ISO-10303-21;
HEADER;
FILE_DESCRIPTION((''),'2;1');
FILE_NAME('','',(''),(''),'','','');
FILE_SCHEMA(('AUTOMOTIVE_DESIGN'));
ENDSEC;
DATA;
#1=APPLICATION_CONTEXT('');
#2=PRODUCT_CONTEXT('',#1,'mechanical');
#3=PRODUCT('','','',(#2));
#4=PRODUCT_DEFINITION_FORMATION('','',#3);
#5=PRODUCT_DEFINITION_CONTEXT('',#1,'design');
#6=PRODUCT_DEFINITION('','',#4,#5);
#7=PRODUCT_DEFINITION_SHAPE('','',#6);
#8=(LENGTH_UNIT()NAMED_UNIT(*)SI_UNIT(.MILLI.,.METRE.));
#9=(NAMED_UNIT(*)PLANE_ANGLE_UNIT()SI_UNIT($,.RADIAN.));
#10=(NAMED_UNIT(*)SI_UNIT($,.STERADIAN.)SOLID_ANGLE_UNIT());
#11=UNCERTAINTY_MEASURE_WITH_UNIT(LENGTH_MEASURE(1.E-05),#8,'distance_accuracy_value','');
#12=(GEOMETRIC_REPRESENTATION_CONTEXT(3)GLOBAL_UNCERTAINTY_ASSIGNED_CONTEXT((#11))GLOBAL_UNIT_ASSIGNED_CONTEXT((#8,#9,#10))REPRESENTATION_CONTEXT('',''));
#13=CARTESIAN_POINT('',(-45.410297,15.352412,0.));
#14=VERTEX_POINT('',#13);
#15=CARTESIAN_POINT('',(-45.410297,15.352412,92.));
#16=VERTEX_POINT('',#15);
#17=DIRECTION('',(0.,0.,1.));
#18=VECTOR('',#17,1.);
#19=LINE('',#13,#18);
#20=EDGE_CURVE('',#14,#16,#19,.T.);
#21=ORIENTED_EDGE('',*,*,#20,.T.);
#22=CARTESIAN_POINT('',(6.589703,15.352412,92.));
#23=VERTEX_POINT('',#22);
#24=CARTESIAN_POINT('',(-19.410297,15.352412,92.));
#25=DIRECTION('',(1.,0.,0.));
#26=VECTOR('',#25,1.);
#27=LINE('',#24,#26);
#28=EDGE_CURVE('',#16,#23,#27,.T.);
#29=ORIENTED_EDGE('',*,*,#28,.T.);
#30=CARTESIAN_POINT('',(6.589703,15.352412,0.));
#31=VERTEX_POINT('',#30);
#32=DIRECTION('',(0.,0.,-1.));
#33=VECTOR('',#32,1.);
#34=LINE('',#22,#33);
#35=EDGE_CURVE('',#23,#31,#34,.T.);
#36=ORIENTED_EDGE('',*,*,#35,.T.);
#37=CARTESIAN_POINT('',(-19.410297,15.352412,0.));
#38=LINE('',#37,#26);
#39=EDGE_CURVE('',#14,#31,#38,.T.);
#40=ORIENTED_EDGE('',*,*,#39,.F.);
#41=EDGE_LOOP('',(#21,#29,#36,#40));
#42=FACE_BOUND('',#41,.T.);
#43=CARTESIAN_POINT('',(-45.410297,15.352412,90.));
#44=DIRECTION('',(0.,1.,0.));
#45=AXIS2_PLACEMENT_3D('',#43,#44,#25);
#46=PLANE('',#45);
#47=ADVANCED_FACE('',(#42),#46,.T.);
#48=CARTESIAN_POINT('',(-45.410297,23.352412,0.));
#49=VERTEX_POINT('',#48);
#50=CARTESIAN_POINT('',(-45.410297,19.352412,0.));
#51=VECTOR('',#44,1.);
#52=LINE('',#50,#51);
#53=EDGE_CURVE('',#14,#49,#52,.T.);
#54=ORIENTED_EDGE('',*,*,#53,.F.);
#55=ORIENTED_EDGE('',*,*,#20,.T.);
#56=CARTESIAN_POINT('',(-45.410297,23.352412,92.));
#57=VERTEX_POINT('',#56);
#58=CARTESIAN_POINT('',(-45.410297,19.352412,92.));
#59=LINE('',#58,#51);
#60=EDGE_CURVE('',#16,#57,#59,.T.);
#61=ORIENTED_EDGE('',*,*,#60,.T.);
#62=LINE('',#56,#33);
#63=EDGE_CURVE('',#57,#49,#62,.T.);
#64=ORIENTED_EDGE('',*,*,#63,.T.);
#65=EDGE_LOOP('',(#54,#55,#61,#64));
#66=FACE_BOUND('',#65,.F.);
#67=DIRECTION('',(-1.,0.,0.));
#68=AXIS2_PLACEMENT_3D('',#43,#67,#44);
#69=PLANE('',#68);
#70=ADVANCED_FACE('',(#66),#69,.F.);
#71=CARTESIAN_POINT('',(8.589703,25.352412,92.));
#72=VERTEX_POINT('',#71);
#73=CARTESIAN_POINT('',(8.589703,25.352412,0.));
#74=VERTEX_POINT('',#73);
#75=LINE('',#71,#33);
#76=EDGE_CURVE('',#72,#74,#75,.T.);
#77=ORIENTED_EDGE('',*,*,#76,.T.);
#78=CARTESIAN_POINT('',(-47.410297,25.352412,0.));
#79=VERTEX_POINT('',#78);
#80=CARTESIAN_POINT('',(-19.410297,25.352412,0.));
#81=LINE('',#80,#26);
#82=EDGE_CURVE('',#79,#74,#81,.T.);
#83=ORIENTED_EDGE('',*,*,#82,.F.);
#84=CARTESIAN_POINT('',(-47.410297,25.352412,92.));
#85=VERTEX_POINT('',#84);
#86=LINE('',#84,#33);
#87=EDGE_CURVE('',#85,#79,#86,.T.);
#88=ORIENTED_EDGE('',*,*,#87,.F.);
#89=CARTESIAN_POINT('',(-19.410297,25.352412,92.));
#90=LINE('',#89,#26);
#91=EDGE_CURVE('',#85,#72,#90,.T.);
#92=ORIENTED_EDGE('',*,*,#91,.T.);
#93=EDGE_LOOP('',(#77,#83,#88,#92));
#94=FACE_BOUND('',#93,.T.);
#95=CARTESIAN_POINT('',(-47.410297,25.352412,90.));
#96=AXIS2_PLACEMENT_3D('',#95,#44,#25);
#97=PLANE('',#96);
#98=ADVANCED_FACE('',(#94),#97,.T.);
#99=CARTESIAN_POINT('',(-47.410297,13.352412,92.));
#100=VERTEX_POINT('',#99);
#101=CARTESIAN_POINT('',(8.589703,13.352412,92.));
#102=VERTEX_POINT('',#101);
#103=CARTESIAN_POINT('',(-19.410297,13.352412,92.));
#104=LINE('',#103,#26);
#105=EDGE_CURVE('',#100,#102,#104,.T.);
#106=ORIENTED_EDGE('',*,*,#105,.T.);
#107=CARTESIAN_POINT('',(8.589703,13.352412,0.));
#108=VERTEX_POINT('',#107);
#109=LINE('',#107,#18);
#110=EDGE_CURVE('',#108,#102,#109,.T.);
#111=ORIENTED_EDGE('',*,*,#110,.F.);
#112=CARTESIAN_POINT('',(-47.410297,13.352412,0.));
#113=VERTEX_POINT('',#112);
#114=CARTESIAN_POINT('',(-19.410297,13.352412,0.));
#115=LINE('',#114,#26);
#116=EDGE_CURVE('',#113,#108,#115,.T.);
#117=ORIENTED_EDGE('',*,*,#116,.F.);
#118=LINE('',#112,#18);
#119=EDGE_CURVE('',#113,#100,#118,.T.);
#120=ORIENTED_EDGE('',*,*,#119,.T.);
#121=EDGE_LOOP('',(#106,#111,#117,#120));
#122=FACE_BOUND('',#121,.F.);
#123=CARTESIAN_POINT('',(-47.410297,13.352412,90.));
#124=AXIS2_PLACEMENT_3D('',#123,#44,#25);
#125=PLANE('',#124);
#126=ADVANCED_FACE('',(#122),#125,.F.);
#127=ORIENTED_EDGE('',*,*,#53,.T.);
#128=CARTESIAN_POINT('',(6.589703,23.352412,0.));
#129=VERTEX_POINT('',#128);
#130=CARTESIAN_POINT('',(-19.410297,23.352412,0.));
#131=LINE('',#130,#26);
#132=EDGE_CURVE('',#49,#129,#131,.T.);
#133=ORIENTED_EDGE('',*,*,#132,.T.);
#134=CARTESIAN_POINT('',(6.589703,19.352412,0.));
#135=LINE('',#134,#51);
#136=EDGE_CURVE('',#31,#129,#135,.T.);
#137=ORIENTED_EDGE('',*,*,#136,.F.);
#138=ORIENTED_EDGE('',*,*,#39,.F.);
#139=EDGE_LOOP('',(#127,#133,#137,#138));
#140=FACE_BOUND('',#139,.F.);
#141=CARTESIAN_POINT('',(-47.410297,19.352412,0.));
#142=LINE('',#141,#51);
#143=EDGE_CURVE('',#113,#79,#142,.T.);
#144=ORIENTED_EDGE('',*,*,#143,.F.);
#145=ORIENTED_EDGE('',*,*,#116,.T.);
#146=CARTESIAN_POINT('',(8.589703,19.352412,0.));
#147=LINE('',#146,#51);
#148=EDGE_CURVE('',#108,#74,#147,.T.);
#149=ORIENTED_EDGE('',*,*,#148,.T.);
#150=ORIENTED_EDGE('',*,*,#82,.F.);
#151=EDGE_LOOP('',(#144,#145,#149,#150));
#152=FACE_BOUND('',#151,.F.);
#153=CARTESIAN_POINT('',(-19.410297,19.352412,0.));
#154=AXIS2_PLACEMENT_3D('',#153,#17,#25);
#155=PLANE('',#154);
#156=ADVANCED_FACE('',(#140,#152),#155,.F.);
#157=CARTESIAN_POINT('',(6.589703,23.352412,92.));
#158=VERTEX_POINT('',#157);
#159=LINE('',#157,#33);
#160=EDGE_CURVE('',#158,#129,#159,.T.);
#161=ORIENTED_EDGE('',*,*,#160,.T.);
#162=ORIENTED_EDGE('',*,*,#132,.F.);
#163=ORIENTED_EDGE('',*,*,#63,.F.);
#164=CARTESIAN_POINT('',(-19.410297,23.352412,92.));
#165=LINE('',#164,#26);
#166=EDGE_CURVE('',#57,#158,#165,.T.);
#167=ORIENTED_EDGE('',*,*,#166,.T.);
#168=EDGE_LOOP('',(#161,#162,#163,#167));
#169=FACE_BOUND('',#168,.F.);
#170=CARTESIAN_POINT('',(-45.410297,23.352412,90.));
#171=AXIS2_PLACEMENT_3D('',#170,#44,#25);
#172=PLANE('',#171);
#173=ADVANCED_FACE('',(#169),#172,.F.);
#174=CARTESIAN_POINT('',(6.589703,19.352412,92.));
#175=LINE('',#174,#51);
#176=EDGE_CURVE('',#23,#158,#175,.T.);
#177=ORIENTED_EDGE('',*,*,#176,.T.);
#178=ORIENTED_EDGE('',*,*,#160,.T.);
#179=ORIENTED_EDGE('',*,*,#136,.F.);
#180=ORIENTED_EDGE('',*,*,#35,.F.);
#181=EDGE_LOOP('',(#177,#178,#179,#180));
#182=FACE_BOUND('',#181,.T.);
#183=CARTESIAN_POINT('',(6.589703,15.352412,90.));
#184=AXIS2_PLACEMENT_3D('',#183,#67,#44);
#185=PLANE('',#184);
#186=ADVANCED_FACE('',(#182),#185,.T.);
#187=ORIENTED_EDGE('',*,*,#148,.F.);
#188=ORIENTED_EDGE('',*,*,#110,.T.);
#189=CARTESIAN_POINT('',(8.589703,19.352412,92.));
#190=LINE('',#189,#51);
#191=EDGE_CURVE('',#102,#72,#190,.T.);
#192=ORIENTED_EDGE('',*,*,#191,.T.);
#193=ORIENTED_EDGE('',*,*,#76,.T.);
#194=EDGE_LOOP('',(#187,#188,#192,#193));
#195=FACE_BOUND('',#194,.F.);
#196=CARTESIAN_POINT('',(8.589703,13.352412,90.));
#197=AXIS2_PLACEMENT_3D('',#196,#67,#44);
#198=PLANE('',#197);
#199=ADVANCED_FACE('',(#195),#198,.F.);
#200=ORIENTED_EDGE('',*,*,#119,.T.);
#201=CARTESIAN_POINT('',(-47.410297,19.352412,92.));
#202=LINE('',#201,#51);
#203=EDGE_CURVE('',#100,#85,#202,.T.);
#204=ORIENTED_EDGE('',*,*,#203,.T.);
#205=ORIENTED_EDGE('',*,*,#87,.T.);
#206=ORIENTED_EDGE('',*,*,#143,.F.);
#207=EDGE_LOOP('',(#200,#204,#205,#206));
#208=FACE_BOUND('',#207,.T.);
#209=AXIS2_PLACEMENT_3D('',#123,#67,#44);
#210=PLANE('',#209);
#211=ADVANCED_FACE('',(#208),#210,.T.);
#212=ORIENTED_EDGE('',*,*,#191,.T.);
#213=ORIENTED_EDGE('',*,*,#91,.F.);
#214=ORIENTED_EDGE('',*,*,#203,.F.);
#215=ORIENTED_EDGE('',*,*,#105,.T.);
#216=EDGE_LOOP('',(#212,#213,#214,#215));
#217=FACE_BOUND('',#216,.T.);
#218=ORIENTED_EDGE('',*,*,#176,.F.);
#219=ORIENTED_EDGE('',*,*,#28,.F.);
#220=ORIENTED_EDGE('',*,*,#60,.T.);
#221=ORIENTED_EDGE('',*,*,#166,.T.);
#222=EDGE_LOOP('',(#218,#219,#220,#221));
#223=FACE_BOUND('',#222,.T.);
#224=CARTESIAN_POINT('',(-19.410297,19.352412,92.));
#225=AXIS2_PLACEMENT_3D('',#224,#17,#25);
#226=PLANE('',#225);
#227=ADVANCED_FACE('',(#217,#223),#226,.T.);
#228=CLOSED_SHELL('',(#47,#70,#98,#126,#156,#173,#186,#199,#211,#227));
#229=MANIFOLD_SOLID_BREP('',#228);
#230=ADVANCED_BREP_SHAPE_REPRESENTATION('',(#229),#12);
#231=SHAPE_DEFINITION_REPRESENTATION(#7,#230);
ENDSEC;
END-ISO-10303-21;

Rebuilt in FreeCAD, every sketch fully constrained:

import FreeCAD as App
import Part
import Sketcher
from FreeCAD import Vector

doc = App.newDocument("Part")
body = doc.addObject("PartDesign::Body", "Body")

# Sketch on XY plane
sketch1 = body.newObject("Sketcher::SketchObject", "Sketch")
sketch1.AttachmentSupport = (doc.getObject("XY_Plane"), [""])
sketch1.MapMode = "FlatFace"
sketch1.addGeometry(Part.LineSegment(Vector(-47, 25, 0), Vector(-47, 13, 0)), False)
sketch1.addGeometry(Part.LineSegment(Vector(-47, 13, 0), Vector(9, 13, 0)), False)
sketch1.addGeometry(Part.LineSegment(Vector(9, 13, 0), Vector(9, 25, 0)), False)
sketch1.addGeometry(Part.LineSegment(Vector(9, 25, 0), Vector(-47, 25, 0)), False)
sketch1.addGeometry(Part.LineSegment(Vector(7, 15, 0), Vector(-45, 15, 0)), False)
sketch1.addGeometry(Part.LineSegment(Vector(-45, 15, 0), Vector(-45, 23, 0)), False)
sketch1.addGeometry(Part.LineSegment(Vector(-45, 23, 0), Vector(7, 23, 0)), False)
sketch1.addGeometry(Part.LineSegment(Vector(7, 23, 0), Vector(7, 15, 0)), False)
sketch1.addConstraint(Sketcher.Constraint("Coincident", 0, 2, 1, 1))
sketch1.addConstraint(Sketcher.Constraint("Coincident", 1, 2, 2, 1))
sketch1.addConstraint(Sketcher.Constraint("Coincident", 2, 2, 3, 1))
sketch1.addConstraint(Sketcher.Constraint("Coincident", 3, 2, 0, 1))
sketch1.addConstraint(Sketcher.Constraint("Coincident", 4, 2, 5, 1))
sketch1.addConstraint(Sketcher.Constraint("Coincident", 5, 2, 6, 1))
sketch1.addConstraint(Sketcher.Constraint("Coincident", 6, 2, 7, 1))
sketch1.addConstraint(Sketcher.Constraint("Coincident", 7, 2, 4, 1))
sketch1.addConstraint(Sketcher.Constraint("Vertical", 0))
sketch1.addConstraint(Sketcher.Constraint("Horizontal", 1))
sketch1.addConstraint(Sketcher.Constraint("Vertical", 2))
sketch1.addConstraint(Sketcher.Constraint("Horizontal", 3))
sketch1.addConstraint(Sketcher.Constraint("Horizontal", 4))
sketch1.addConstraint(Sketcher.Constraint("Vertical", 5))
sketch1.addConstraint(Sketcher.Constraint("Horizontal", 6))
sketch1.addConstraint(Sketcher.Constraint("Vertical", 7))
sketch1.addConstraint(Sketcher.Constraint("DistanceX", 1, 1, 1, 2, 56.0))
sketch1.addConstraint(Sketcher.Constraint("DistanceX", 4, 2, 4, 1, 52.0))
sketch1.addConstraint(Sketcher.Constraint("DistanceY", 0, 2, 0, 1, 12.0))
sketch1.addConstraint(Sketcher.Constraint("DistanceY", 5, 1, 5, 2, 8.0))
sketch1.addConstraint(Sketcher.Constraint("DistanceX", 0, 2, 4, 2, 2.0))
sketch1.addConstraint(Sketcher.Constraint("DistanceY", 0, 2, 4, 2, 2.0))
sketch1.addConstraint(Sketcher.Constraint("DistanceY", -1, 1, 0, 2, 13.352412))
sketch1.addConstraint(Sketcher.Constraint("DistanceX", 0, 2, -1, 1, 47.410297))
pad1 = body.newObject("PartDesign::Pad", "Pad")
pad1.Profile = sketch1
pad1.Length = 90

# Sketch on XY plane
sketch2 = body.newObject("Sketcher::SketchObject", "Sketch001")
sketch2.AttachmentSupport = (doc.getObject("XY_Plane"), [""])
sketch2.MapMode = "FlatFace"
sketch2.AttachmentOffset = App.Placement(Vector(0, 0, 90), App.Rotation())
sketch2.addGeometry(Part.LineSegment(Vector(-47, 25, 0), Vector(-47, 13, 0)), False)
sketch2.addGeometry(Part.LineSegment(Vector(-47, 13, 0), Vector(9, 13, 0)), False)
sketch2.addGeometry(Part.LineSegment(Vector(9, 13, 0), Vector(9, 25, 0)), False)
sketch2.addGeometry(Part.LineSegment(Vector(9, 25, 0), Vector(-47, 25, 0)), False)
sketch2.addGeometry(Part.LineSegment(Vector(7, 15, 0), Vector(-45, 15, 0)), False)
sketch2.addGeometry(Part.LineSegment(Vector(-45, 15, 0), Vector(-45, 23, 0)), False)
sketch2.addGeometry(Part.LineSegment(Vector(-45, 23, 0), Vector(7, 23, 0)), False)
sketch2.addGeometry(Part.LineSegment(Vector(7, 23, 0), Vector(7, 15, 0)), False)
sketch2.addConstraint(Sketcher.Constraint("Coincident", 0, 2, 1, 1))
sketch2.addConstraint(Sketcher.Constraint("Coincident", 1, 2, 2, 1))
sketch2.addConstraint(Sketcher.Constraint("Coincident", 2, 2, 3, 1))
sketch2.addConstraint(Sketcher.Constraint("Coincident", 3, 2, 0, 1))
sketch2.addConstraint(Sketcher.Constraint("Coincident", 4, 2, 5, 1))
sketch2.addConstraint(Sketcher.Constraint("Coincident", 5, 2, 6, 1))
sketch2.addConstraint(Sketcher.Constraint("Coincident", 6, 2, 7, 1))
sketch2.addConstraint(Sketcher.Constraint("Coincident", 7, 2, 4, 1))
sketch2.addConstraint(Sketcher.Constraint("Vertical", 0))
sketch2.addConstraint(Sketcher.Constraint("Horizontal", 1))
sketch2.addConstraint(Sketcher.Constraint("Vertical", 2))
sketch2.addConstraint(Sketcher.Constraint("Horizontal", 3))
sketch2.addConstraint(Sketcher.Constraint("Horizontal", 4))
sketch2.addConstraint(Sketcher.Constraint("Vertical", 5))
sketch2.addConstraint(Sketcher.Constraint("Horizontal", 6))
sketch2.addConstraint(Sketcher.Constraint("Vertical", 7))
sketch2.addConstraint(Sketcher.Constraint("DistanceX", 1, 1, 1, 2, 56.0))
sketch2.addConstraint(Sketcher.Constraint("DistanceX", 4, 2, 4, 1, 52.0))
sketch2.addConstraint(Sketcher.Constraint("DistanceY", 0, 2, 0, 1, 12.0))
sketch2.addConstraint(Sketcher.Constraint("DistanceY", 5, 1, 5, 2, 8.0))
sketch2.addConstraint(Sketcher.Constraint("DistanceX", 0, 2, 4, 2, 2.0))
sketch2.addConstraint(Sketcher.Constraint("DistanceY", 0, 2, 4, 2, 2.0))
sketch2.addConstraint(Sketcher.Constraint("DistanceY", -1, 1, 0, 2, 13.352412))
sketch2.addConstraint(Sketcher.Constraint("DistanceX", 0, 2, -1, 1, 47.410297))
pad2 = body.newObject("PartDesign::Pad", "Pad001")
pad2.Profile = sketch2
pad2.Length = 2

doc.recompute()
